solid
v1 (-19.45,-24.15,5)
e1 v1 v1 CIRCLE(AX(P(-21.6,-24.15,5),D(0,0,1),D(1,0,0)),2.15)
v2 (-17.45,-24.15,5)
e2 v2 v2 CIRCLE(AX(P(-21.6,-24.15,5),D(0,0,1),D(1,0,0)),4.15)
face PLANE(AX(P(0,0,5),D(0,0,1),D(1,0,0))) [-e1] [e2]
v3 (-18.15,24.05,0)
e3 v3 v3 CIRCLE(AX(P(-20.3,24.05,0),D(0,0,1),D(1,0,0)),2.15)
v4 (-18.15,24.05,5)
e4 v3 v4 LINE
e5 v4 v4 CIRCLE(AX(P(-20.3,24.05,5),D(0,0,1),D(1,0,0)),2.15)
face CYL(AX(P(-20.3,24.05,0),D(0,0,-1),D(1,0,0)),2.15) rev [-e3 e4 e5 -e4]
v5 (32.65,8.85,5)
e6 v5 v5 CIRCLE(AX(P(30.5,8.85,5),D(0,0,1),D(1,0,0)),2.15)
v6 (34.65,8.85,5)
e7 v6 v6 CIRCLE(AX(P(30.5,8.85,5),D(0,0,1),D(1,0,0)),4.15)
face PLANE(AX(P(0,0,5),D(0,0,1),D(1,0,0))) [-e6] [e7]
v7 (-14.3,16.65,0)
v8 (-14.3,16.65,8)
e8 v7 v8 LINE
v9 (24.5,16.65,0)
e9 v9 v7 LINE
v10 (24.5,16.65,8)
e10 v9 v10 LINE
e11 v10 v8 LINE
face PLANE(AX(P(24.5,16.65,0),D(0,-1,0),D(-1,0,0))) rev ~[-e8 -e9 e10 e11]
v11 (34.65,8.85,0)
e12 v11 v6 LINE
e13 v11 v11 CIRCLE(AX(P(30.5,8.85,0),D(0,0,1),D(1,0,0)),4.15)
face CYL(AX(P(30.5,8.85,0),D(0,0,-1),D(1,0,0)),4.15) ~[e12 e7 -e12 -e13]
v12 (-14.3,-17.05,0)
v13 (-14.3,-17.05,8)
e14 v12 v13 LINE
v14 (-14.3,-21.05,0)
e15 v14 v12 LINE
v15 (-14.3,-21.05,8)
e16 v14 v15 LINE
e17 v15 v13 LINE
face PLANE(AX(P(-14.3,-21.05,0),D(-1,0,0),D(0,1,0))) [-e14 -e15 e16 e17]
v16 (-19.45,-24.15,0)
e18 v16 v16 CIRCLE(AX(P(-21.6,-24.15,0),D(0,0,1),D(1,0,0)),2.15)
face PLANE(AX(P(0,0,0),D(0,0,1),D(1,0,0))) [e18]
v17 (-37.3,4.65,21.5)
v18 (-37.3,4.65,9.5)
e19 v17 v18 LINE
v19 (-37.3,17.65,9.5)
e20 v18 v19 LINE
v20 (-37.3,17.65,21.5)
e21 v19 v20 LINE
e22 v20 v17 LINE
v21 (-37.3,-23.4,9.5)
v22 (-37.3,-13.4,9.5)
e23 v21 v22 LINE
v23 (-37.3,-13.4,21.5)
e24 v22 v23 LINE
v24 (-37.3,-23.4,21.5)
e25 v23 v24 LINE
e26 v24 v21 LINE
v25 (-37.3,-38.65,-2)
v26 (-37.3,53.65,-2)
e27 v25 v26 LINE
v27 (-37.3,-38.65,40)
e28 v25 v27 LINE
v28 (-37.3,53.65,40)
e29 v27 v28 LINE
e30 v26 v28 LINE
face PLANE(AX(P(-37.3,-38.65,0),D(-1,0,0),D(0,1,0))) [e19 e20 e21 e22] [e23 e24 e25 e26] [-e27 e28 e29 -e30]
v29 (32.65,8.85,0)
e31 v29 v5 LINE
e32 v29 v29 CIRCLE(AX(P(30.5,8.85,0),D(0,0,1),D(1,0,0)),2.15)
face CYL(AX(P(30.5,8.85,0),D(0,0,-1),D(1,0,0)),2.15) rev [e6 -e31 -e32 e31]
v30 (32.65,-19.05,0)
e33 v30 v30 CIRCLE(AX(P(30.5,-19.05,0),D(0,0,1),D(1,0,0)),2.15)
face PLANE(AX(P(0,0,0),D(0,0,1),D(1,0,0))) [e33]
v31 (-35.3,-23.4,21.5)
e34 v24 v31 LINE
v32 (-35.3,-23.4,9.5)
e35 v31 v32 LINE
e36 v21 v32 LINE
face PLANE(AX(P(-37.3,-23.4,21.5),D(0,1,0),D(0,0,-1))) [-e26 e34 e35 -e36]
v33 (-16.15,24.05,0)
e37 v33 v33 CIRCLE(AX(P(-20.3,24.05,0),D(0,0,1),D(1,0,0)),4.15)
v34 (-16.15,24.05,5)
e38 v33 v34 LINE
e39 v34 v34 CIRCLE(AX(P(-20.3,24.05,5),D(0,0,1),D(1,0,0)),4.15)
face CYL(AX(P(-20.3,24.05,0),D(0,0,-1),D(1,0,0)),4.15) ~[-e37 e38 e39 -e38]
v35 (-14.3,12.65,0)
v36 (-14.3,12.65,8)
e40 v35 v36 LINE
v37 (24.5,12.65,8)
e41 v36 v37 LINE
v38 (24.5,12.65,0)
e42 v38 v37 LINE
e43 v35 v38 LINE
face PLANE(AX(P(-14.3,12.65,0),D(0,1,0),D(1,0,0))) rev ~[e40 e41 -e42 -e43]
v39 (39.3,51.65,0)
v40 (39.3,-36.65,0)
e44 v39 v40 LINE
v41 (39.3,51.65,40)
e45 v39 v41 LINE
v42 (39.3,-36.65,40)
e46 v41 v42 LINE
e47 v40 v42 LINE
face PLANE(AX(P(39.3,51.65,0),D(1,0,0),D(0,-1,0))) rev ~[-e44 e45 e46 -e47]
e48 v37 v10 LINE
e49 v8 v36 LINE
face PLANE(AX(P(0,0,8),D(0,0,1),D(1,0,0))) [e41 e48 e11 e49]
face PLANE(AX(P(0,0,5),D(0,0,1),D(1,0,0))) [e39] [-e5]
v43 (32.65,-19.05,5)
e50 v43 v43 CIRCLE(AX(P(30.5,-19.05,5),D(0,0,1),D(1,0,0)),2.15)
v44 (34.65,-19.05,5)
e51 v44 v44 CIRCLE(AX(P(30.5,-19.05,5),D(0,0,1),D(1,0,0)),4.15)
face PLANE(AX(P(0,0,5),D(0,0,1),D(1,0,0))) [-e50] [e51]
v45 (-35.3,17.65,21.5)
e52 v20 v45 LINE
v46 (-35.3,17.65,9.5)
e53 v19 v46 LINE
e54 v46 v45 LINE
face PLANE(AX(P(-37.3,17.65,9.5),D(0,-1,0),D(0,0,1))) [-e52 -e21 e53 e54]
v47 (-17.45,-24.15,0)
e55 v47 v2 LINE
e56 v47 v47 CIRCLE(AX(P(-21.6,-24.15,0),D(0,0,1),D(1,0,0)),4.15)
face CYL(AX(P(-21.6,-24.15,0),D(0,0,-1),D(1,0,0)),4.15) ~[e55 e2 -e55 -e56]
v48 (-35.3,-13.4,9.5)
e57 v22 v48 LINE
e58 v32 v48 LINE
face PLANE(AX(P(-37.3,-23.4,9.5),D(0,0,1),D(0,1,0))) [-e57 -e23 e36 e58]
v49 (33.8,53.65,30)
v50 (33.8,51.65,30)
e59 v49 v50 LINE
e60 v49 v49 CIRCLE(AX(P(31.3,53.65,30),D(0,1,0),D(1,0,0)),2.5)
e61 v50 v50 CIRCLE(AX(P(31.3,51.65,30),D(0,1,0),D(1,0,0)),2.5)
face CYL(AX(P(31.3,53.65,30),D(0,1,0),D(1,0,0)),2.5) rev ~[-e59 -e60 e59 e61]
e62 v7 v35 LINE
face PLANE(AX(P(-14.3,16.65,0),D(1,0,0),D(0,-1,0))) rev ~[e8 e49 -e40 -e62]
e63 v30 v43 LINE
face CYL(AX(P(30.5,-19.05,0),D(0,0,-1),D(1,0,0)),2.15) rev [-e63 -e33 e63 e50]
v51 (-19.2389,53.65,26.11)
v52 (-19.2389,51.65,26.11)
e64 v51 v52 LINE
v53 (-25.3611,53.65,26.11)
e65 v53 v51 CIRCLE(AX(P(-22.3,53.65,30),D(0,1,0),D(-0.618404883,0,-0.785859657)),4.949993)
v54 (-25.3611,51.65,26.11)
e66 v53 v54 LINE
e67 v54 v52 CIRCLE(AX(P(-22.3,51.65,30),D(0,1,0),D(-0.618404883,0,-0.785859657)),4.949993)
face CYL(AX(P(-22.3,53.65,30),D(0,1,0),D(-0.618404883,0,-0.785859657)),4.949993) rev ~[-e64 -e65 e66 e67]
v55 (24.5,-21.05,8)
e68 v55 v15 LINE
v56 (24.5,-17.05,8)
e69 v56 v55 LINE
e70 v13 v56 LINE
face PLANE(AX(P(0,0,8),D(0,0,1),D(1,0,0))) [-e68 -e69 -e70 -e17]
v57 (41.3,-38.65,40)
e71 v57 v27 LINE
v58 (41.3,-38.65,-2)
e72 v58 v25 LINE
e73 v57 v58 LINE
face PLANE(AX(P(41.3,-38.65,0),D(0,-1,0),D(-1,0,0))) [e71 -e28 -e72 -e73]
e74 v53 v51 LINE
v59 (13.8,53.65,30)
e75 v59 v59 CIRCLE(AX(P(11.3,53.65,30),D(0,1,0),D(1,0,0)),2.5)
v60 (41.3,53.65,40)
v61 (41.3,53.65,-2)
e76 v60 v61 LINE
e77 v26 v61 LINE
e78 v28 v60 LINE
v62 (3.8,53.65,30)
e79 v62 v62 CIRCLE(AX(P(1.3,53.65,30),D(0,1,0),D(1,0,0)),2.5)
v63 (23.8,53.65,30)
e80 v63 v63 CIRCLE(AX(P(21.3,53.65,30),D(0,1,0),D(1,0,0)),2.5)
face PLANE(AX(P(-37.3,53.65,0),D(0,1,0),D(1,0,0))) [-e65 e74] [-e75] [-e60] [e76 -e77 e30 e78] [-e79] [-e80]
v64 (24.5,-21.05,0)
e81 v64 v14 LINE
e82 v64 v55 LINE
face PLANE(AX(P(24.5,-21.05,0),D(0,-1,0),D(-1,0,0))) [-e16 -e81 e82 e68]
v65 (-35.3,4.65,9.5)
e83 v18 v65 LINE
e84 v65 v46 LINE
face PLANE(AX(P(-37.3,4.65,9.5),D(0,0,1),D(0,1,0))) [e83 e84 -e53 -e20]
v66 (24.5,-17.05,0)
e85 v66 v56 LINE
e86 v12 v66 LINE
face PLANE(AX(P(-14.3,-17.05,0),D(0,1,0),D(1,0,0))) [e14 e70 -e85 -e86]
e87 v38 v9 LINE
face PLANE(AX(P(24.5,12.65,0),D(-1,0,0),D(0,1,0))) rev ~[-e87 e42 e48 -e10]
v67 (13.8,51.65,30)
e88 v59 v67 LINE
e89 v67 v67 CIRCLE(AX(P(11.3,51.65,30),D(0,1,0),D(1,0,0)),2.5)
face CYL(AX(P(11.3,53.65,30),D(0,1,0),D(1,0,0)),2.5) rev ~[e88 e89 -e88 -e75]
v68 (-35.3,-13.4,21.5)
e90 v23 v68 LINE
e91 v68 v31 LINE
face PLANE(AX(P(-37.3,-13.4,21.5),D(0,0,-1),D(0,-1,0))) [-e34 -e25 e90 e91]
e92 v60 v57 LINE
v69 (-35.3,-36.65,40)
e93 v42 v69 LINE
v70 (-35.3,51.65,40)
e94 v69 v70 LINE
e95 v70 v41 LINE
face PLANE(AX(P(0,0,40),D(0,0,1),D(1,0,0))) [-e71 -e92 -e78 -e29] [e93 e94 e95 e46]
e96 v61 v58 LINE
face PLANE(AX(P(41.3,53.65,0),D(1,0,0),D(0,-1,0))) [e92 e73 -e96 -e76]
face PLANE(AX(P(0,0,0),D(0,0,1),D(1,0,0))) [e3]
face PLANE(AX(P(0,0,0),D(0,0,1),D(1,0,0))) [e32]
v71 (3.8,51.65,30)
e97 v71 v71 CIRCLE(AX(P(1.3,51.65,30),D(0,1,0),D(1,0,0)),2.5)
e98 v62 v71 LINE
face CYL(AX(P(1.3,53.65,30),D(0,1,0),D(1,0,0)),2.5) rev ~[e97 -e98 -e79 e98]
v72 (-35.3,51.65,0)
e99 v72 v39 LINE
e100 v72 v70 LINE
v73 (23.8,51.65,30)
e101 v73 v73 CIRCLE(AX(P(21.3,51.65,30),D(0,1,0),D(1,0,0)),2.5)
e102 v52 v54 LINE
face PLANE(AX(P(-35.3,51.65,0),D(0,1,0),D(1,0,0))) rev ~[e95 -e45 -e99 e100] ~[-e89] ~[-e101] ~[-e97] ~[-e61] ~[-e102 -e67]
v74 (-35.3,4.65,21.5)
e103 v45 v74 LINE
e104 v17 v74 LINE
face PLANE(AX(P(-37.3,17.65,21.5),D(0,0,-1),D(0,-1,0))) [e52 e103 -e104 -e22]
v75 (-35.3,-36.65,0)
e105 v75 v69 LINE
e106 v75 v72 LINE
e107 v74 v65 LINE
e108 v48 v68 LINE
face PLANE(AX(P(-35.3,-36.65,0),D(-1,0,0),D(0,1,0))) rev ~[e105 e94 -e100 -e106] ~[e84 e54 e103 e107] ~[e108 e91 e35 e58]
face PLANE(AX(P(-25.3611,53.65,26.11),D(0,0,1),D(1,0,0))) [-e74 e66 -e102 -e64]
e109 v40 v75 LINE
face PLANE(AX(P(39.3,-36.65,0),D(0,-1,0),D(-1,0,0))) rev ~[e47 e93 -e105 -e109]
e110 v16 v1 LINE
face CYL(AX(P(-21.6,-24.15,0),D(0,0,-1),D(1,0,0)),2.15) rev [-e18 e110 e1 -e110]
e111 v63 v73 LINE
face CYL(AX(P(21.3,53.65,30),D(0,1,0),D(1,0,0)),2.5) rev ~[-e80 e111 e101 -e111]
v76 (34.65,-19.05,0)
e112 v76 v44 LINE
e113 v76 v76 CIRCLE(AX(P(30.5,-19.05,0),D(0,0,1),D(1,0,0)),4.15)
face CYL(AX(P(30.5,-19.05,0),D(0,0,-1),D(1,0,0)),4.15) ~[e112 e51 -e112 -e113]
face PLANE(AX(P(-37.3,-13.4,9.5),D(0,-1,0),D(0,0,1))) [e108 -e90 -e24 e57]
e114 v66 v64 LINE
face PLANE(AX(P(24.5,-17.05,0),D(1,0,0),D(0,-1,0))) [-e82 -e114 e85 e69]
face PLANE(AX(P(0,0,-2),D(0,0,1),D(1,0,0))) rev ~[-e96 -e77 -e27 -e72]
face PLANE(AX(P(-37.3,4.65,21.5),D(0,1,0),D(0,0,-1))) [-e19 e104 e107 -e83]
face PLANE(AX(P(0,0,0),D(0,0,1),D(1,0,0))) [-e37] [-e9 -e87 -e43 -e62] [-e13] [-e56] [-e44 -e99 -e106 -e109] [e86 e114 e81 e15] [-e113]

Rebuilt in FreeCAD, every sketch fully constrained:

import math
import FreeCAD as App
import Part
import Sketcher
from FreeCAD import Vector


def add_polygon(sketch, points):
    """Adds a closed chain of lines whose ends are joined by coincident constraints."""
    first, n = sketch.GeometryCount, len(points)
    for a, b in zip(points, points[1:] + points[:1]):
        sketch.addGeometry(Part.LineSegment(App.Vector(*a, 0), App.Vector(*b, 0)), False)
    for i in range(n):
        sketch.addConstraint(Sketcher.Constraint("Coincident", first + i, 2, first + (i + 1) % n, 1))

doc = App.newDocument("Part")
body = doc.addObject("PartDesign::Body", "Body")

# Sketch on XY plane
sketch1 = body.newObject("Sketcher::SketchObject", "Sketch")
sketch1.AttachmentSupport = (doc.getObject("XY_Plane"), [""])
sketch1.MapMode = "FlatFace"
add_polygon(sketch1, [(41.3, 53.65), (-37.3, 53.65), (-37.3, -38.65), (41.3, -38.65)])  # lines 0-3
sketch1.addConstraint(Sketcher.Constraint("Horizontal", 0))
sketch1.addConstraint(Sketcher.Constraint("Vertical", 1))
sketch1.addConstraint(Sketcher.Constraint("Horizontal", 2))
sketch1.addConstraint(Sketcher.Constraint("Vertical", 3))
sketch1.addConstraint(Sketcher.Constraint("DistanceX", 0, 2, 0, 1, 78.6))
sketch1.addConstraint(Sketcher.Constraint("DistanceY", 1, 2, 1, 1, 92.3))
sketch1.addConstraint(Sketcher.Constraint("DistanceX", 0, 2, -1, 1, 37.3))
sketch1.addConstraint(Sketcher.Constraint("DistanceY", -1, 1, 0, 2, 53.65))
pad1 = body.newObject("PartDesign::Pad", "Pad")
pad1.Profile = sketch1
pad1.Length = 2
pad1.Reversed = True

# Sketch on XY plane
sketch2 = body.newObject("Sketcher::SketchObject", "Sketch001")
sketch2.AttachmentSupport = (doc.getObject("XY_Plane"), [""])
sketch2.MapMode = "FlatFace"
add_polygon(sketch2, [(41.3, 53.65), (-37.3, 53.65), (-37.3, -38.65), (41.3, -38.65)])  # lines 0-3
add_polygon(sketch2, [(-35.3, -36.65), (-35.3, 51.65), (39.3, 51.65), (39.3, -36.65)])  # lines 4-7
sketch2.addConstraint(Sketcher.Constraint("Horizontal", 0))
sketch2.addConstraint(Sketcher.Constraint("Vertical", 1))
sketch2.addConstraint(Sketcher.Constraint("Horizontal", 2))
sketch2.addConstraint(Sketcher.Constraint("Vertical", 3))
sketch2.addConstraint(Sketcher.Constraint("Vertical", 4))
sketch2.addConstraint(Sketcher.Constraint("Horizontal", 5))
sketch2.addConstraint(Sketcher.Constraint("Vertical", 6))
sketch2.addConstraint(Sketcher.Constraint("Horizontal", 7))
sketch2.addConstraint(Sketcher.Constraint("DistanceX", 0, 2, 4, 2, 2.0))
sketch2.addConstraint(Sketcher.Constraint("DistanceY", 4, 2, 0, 2, 2.0))
sketch2.addConstraint(Sketcher.Constraint("DistanceX", 5, 2, 3, 2, 2.0))
sketch2.addConstraint(Sketcher.Constraint("DistanceY", 2, 2, 6, 2, 2.0))
sketch2.addConstraint(Sketcher.Constraint("DistanceX", 0, 2, 0, 1, 78.6))
sketch2.addConstraint(Sketcher.Constraint("DistanceY", 1, 2, 1, 1, 92.3))
sketch2.addConstraint(Sketcher.Constraint("DistanceX", 0, 2, -1, 1, 37.3))
sketch2.addConstraint(Sketcher.Constraint("DistanceY", -1, 1, 0, 2, 53.65))
pad2 = body.newObject("PartDesign::Pad", "Pad001")
pad2.Profile = sketch2
pad2.Length = 40

# Sketch on XY plane
sketch3 = body.newObject("Sketcher::SketchObject", "Sketch002")
sketch3.AttachmentSupport = (doc.getObject("XY_Plane"), [""])
sketch3.MapMode = "FlatFace"
sketch3.addGeometry(Part.Circle(Vector(-20.3, 24.05, 0), Vector(0, 0, 1), 4.15), False)
sketch3.addGeometry(Part.Circle(Vector(-20.3, 24.05, 0), Vector(0, 0, 1), 2.15), False)
sketch3.addGeometry(Part.Circle(Vector(-21.6, -24.15, 0), Vector(0, 0, 1), 4.15), False)
sketch3.addGeometry(Part.Circle(Vector(-21.6, -24.15, 0), Vector(0, 0, 1), 2.15), False)
sketch3.addGeometry(Part.Circle(Vector(30.5, -19.05, 0), Vector(0, 0, 1), 4.15), False)
sketch3.addGeometry(Part.Circle(Vector(30.5, -19.05, 0), Vector(0, 0, 1), 2.15), False)
sketch3.addGeometry(Part.Circle(Vector(30.5, 8.85, 0), Vector(0, 0, 1), 4.15), False)
sketch3.addGeometry(Part.Circle(Vector(30.5, 8.85, 0), Vector(0, 0, 1), 2.15), False)
sketch3.addConstraint(Sketcher.Constraint("Coincident", 1, 3, 0, 3))
sketch3.addConstraint(Sketcher.Constraint("Coincident", 3, 3, 2, 3))
sketch3.addConstraint(Sketcher.Constraint("Coincident", 5, 3, 4, 3))
sketch3.addConstraint(Sketcher.Constraint("Coincident", 7, 3, 6, 3))
sketch3.addConstraint(Sketcher.Constraint("Equal", 0, 2))
sketch3.addConstraint(Sketcher.Constraint("Equal", 1, 3))
sketch3.addConstraint(Sketcher.Constraint("Equal", 2, 4))
sketch3.addConstraint(Sketcher.Constraint("Equal", 3, 5))
sketch3.addConstraint(Sketcher.Constraint("Equal", 4, 6))
sketch3.addConstraint(Sketcher.Constraint("Equal", 5, 7))
sketch3.addConstraint(Sketcher.Constraint("Vertical", 5, 3, 6, 3))
sketch3.addConstraint(Sketcher.Constraint("Diameter", 0, 8.3))
sketch3.addConstraint(Sketcher.Constraint("Diameter", 1, 4.3))
sketch3.addConstraint(Sketcher.Constraint("DistanceY", 2, 3, 6, 3, 33.0))
sketch3.addConstraint(Sketcher.Constraint("DistanceX", 0, 3, -1, 1, 20.3))
sketch3.addConstraint(Sketcher.Constraint("DistanceX", 2, 3, -1, 1, 21.6))
sketch3.addConstraint(Sketcher.Constraint("DistanceX", -1, 1, 4, 3, 30.5))
sketch3.addConstraint(Sketcher.Constraint("DistanceY", 2, 3, 0, 3, 48.2))
sketch3.addConstraint(Sketcher.Constraint("DistanceY", 2, 3, 4, 3, 5.1))
sketch3.addConstraint(Sketcher.Constraint("DistanceY", -1, 1, 0, 3, 24.05))
pad3 = body.newObject("PartDesign::Pad", "Pad002")
pad3.Profile = sketch3
pad3.Length = 5

# Sketch on XY plane
sketch4 = body.newObject("Sketcher::SketchObject", "Sketch003")
sketch4.AttachmentSupport = (doc.getObject("XY_Plane"), [""])
sketch4.MapMode = "FlatFace"
add_polygon(sketch4, [(24.5, -17.05), (-14.3, -17.05), (-14.3, -21.05), (24.5, -21.05)])  # lines 0-3
add_polygon(sketch4, [(24.5, 12.65), (24.5, 16.65), (-14.3, 16.65), (-14.3, 12.65)])  # lines 4-7
sketch4.addConstraint(Sketcher.Constraint("Horizontal", 0))
sketch4.addConstraint(Sketcher.Constraint("Vertical", 1))
sketch4.addConstraint(Sketcher.Constraint("Horizontal", 2))
sketch4.addConstraint(Sketcher.Constraint("Vertical", 3))
sketch4.addConstraint(Sketcher.Constraint("Vertical", 4))
sketch4.addConstraint(Sketcher.Constraint("Horizontal", 5))
sketch4.addConstraint(Sketcher.Constraint("Vertical", 6))
sketch4.addConstraint(Sketcher.Constraint("Horizontal", 7))
sketch4.addConstraint(Sketcher.Constraint("Vertical", 3, 2, 4, 2))
sketch4.addConstraint(Sketcher.Constraint("Vertical", 1, 2, 5, 2))
sketch4.addConstraint(Sketcher.Constraint("Equal", 3, 4))
sketch4.addConstraint(Sketcher.Constraint("DistanceY", 1, 2, 1, 1, 4.0))
sketch4.addConstraint(Sketcher.Constraint("DistanceX", 0, 2, 0, 1, 38.8))
sketch4.addConstraint(Sketcher.Constraint("DistanceX", 0, 2, -1, 1, 14.3))
sketch4.addConstraint(Sketcher.Constraint("DistanceY", 3, 2, 4, 2, 33.7))
sketch4.addConstraint(Sketcher.Constraint("DistanceY", 0, 2, -1, 1, 17.05))
pad4 = body.newObject("PartDesign::Pad", "Pad003")
pad4.Profile = sketch4
pad4.Length = 8

# Sketch on YZ plane
sketch5 = body.newObject("Sketcher::SketchObject", "Sketch004")
sketch5.AttachmentSupport = (doc.getObject("YZ_Plane"), [""])
sketch5.MapMode = "FlatFace"
sketch5.AttachmentOffset = App.Placement(Vector(0, 0, -37.3), App.Rotation())
add_polygon(sketch5, [(17.65, 21.5), (17.65, 9.5), (4.65, 9.5), (4.65, 21.5)])  # lines 0-3
add_polygon(sketch5, [(-23.4, 9.5), (-23.4, 21.5), (-13.4, 21.5), (-13.4, 9.5)])  # lines 4-7
sketch5.addConstraint(Sketcher.Constraint("Vertical", 0))
sketch5.addConstraint(Sketcher.Constraint("Horizontal", 1))
sketch5.addConstraint(Sketcher.Constraint("Vertical", 2))
sketch5.addConstraint(Sketcher.Constraint("Horizontal", 3))
sketch5.addConstraint(Sketcher.Constraint("Vertical", 4))
sketch5.addConstraint(Sketcher.Constraint("Horizontal", 5))
sketch5.addConstraint(Sketcher.Constraint("Vertical", 6))
sketch5.addConstraint(Sketcher.Constraint("Horizontal", 7))
sketch5.addConstraint(Sketcher.Constraint("Horizontal", 3, 2, 4, 2))
sketch5.addConstraint(Sketcher.Constraint("Horizontal", 1, 2, 6, 2))
sketch5.addConstraint(Sketcher.Constraint("DistanceX", 1, 2, 1, 1, 13.0))
sketch5.addConstraint(Sketcher.Constraint("DistanceX", 5, 1, 5, 2, 10.0))
sketch5.addConstraint(Sketcher.Constraint("DistanceY", 0, 2, 0, 1, 12.0))
sketch5.addConstraint(Sketcher.Constraint("DistanceY", -1, 1, 0, 2, 9.5))
sketch5.addConstraint(Sketcher.Constraint("DistanceX", 4, 2, -1, 1, 23.4))
sketch5.addConstraint(Sketcher.Constraint("DistanceX", -1, 1, 0, 2, 17.65))
pocket1 = body.newObject("PartDesign::Pocket", "Pocket")
pocket1.Profile = sketch5
pocket1.Length = 2
pocket1.Reversed = True

# Sketch on XZ plane
sketch6 = body.newObject("Sketcher::SketchObject", "Sketch005")
sketch6.AttachmentSupport = (doc.getObject("XZ_Plane"), [""])
sketch6.MapMode = "FlatFace"
sketch6.AttachmentOffset = App.Placement(Vector(0, 0, -53.65), App.Rotation())
sketch6.addGeometry(Part.LineSegment(Vector(-19.2389, 26.11, 0), Vector(-25.3611, 26.11, 0)), False)
sketch6.addGeometry(Part.ArcOfCircle(Part.Circle(Vector(-22.3, 30, 0), Vector(0, 0, 1), 4.949993), math.radians(-51.800256), math.radians(231.800256)), False)
sketch6.addGeometry(Part.Circle(Vector(31.3, 30, 0), Vector(0, 0, 1), 2.5), False)
sketch6.addGeometry(Part.Circle(Vector(21.3, 30, 0), Vector(0, 0, 1), 2.5), False)
sketch6.addGeometry(Part.Circle(Vector(11.3, 30, 0), Vector(0, 0, 1), 2.5), False)
sketch6.addGeometry(Part.Circle(Vector(1.3, 30, 0), Vector(0, 0, 1), 2.5), False)
sketch6.addConstraint(Sketcher.Constraint("Coincident", 0, 1, 1, 1))
sketch6.addConstraint(Sketcher.Constraint("Coincident", 1, 2, 0, 2))
sketch6.addConstraint(Sketcher.Constraint("Horizontal", 0))
sketch6.addConstraint(Sketcher.Constraint("Equal", 2, 3))
sketch6.addConstraint(Sketcher.Constraint("Equal", 3, 4))
sketch6.addConstraint(Sketcher.Constraint("Equal", 4, 5))
sketch6.addConstraint(Sketcher.Constraint("Horizontal", 1, 3, 2, 3))
sketch6.addConstraint(Sketcher.Constraint("Horizontal", 2, 3, 3, 3))
sketch6.addConstraint(Sketcher.Constraint("Horizontal", 3, 3, 4, 3))
sketch6.addConstraint(Sketcher.Constraint("Horizontal", 4, 3, 5, 3))
sketch6.addConstraint(Sketcher.Constraint("Diameter", 2, 5.0))
sketch6.addConstraint(Sketcher.Constraint("Radius", 1, 4.95))
sketch6.addConstraint(Sketcher.Constraint("DistanceX", 3, 3, 2, 3, 10.0))
sketch6.addConstraint(Sketcher.Constraint("DistanceX", 4, 3, 3, 3, 10.0))
sketch6.addConstraint(Sketcher.Constraint("DistanceX", 5, 3, 4, 3, 10.0))
sketch6.addConstraint(Sketcher.Constraint("DistanceY", 0, 1, 1, 3, 3.89))
sketch6.addConstraint(Sketcher.Constraint("DistanceY", -1, 1, 1, 3, 30.0))
sketch6.addConstraint(Sketcher.Constraint("DistanceX", 1, 3, -1, 1, 22.3))
sketch6.addConstraint(Sketcher.Constraint("DistanceX", -1, 1, 2, 3, 31.3))
pocket2 = body.newObject("PartDesign::Pocket", "Pocket001")
pocket2.Profile = sketch6
pocket2.Type = "UpToFirst"
pocket2.Reversed = True

doc.recompute()
